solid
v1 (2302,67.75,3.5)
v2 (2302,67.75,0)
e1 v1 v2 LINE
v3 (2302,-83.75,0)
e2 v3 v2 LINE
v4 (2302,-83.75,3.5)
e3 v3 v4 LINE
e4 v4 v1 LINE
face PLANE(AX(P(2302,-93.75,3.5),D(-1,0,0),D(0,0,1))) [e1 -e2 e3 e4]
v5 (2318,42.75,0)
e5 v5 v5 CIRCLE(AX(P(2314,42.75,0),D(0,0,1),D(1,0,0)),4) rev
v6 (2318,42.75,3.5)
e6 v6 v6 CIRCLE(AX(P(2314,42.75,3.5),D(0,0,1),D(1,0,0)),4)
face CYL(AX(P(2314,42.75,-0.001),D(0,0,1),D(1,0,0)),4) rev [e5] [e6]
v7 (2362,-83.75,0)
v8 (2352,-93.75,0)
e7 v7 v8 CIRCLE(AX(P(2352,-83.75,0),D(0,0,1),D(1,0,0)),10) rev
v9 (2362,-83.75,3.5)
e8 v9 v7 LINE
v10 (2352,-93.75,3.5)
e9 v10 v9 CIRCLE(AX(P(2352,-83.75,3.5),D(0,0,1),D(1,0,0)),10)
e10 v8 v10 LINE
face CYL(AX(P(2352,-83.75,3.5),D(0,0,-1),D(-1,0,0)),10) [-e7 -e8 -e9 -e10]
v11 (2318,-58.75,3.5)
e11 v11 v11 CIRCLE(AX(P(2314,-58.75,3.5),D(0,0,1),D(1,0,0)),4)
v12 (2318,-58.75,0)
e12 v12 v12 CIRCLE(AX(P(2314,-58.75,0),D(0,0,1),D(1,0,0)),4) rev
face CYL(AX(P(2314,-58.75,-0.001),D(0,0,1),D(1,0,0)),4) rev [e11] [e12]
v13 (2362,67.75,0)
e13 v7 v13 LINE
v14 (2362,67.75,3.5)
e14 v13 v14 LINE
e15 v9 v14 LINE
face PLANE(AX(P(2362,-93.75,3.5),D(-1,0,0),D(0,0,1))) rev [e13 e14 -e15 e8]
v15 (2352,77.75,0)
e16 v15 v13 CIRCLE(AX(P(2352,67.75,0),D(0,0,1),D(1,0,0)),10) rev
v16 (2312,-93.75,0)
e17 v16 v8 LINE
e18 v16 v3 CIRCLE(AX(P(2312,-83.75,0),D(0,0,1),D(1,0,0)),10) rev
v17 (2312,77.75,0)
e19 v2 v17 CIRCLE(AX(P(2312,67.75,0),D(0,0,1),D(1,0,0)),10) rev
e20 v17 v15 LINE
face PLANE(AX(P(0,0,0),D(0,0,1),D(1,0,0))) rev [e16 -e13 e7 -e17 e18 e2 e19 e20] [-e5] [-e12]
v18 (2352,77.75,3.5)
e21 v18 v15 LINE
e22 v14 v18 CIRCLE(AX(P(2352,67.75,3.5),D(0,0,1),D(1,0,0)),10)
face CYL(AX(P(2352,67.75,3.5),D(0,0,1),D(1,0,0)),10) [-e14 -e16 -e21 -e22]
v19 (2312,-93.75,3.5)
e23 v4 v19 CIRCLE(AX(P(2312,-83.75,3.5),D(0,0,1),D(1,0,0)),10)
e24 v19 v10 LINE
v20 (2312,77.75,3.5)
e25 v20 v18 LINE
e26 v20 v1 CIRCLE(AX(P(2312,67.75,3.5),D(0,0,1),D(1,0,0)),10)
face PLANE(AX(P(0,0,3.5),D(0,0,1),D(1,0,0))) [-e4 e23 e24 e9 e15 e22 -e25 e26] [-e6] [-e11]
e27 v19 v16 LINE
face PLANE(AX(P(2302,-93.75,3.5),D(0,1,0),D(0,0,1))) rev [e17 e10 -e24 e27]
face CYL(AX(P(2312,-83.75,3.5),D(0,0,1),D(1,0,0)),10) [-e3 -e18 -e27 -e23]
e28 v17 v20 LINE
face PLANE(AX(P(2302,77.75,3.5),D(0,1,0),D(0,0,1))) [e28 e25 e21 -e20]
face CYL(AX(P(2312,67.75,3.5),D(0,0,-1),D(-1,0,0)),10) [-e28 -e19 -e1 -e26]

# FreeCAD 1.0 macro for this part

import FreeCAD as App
import Part
import Sketcher

V = App.Vector


def edges_at(feature, points):
    """Names of the edges that pass closest to the given points."""
    edges = feature.Shape.Edges
    near = lambda p: min(range(len(edges)), key=lambda i: edges[i].distToShape(Part.Vertex(*p))[0])
    return sorted({f"Edge{near(p) + 1}" for p in points})

doc = App.newDocument("Part")
body = doc.addObject("PartDesign::Body", "Body")

sketch1 = body.newObject("Sketcher::SketchObject", "Sketch")
sketch1.AttachmentSupport = (doc.getObject("XY_Plane"), [""])
sketch1.MapMode = "FlatFace"
sketch1.addGeometry([
    Part.LineSegment(V(2302, 77.75, 0), V(2302, -93.75, 0)),
    Part.LineSegment(V(2302, -93.75, 0), V(2362, -93.75, 0)),
    Part.LineSegment(V(2362, -93.75, 0), V(2362, 77.75, 0)),
    Part.LineSegment(V(2362, 77.75, 0), V(2302, 77.75, 0)),
], False)
sketch1.addConstraint([
    Sketcher.Constraint("Coincident", 0, 2, 1, 1),
    Sketcher.Constraint("Coincident", 1, 2, 2, 1),
    Sketcher.Constraint("Coincident", 2, 2, 3, 1),
    Sketcher.Constraint("Coincident", 3, 2, 0, 1),
    Sketcher.Constraint("Vertical", 0),
    Sketcher.Constraint("Horizontal", 1),
    Sketcher.Constraint("Vertical", 2),
    Sketcher.Constraint("Horizontal", 3),
    Sketcher.Constraint("DistanceX", 1, 1, 1, 2, 60.0),
    Sketcher.Constraint("DistanceY", 0, 2, 0, 1, 171.5),
    Sketcher.Constraint("DistanceX", -1, 1, 0, 2, 2302.0),
    Sketcher.Constraint("DistanceY", 0, 2, -1, 1, 93.75),
])
pad1 = body.newObject("PartDesign::Pad", "Pad")
pad1.Profile = sketch1
pad1.Length = 3.5
doc.recompute()

fillet = body.newObject("PartDesign::Fillet", "Fillet")
fillet.Base = (pad1, edges_at(pad1, [
    (2302, -93.75, 1.75),
    (2302, 77.75, 1.75),
    (2362, 77.75, 1.75),
    (2362, -93.75, 1.75),
]))
fillet.Radius = 10

sketch2 = body.newObject("Sketcher::SketchObject", "Sketch001")
sketch2.AttachmentSupport = (doc.getObject("XY_Plane"), [""])
sketch2.MapMode = "FlatFace"
sketch2.AttachmentOffset = App.Placement(V(0, 0, 3.5), App.Rotation())
sketch2.addGeometry(Part.Circle(V(2314, 42.75, 0), V(0, 0, 1), 4), False)
sketch2.addConstraint([
    Sketcher.Constraint("Diameter", 0, 8.0),
    Sketcher.Constraint("DistanceX", -1, 1, 0, 3, 2314.0),
    Sketcher.Constraint("DistanceY", -1, 1, 0, 3, 42.75),
])
pocket1 = body.newObject("PartDesign::Pocket", "Pocket")
pocket1.Profile = sketch2
pocket1.Type = "UpToFirst"

sketch3 = body.newObject("Sketcher::SketchObject", "Sketch002")
sketch3.AttachmentSupport = (doc.getObject("XY_Plane"), [""])
sketch3.MapMode = "FlatFace"
sketch3.AttachmentOffset = App.Placement(V(0, 0, 3.5), App.Rotation())
sketch3.addGeometry(Part.Circle(V(2314, -58.75, 0), V(0, 0, 1), 4), False)
sketch3.addConstraint([
    Sketcher.Constraint("Diameter", 0, 8.0),
    Sketcher.Constraint("DistanceX", -1, 1, 0, 3, 2314.0),
    Sketcher.Constraint("DistanceY", 0, 3, -1, 1, 58.75),
])
pocket2 = body.newObject("PartDesign::Pocket", "Pocket001")
pocket2.Profile = sketch3
pocket2.Type = "UpToFirst"

doc.recompute()
